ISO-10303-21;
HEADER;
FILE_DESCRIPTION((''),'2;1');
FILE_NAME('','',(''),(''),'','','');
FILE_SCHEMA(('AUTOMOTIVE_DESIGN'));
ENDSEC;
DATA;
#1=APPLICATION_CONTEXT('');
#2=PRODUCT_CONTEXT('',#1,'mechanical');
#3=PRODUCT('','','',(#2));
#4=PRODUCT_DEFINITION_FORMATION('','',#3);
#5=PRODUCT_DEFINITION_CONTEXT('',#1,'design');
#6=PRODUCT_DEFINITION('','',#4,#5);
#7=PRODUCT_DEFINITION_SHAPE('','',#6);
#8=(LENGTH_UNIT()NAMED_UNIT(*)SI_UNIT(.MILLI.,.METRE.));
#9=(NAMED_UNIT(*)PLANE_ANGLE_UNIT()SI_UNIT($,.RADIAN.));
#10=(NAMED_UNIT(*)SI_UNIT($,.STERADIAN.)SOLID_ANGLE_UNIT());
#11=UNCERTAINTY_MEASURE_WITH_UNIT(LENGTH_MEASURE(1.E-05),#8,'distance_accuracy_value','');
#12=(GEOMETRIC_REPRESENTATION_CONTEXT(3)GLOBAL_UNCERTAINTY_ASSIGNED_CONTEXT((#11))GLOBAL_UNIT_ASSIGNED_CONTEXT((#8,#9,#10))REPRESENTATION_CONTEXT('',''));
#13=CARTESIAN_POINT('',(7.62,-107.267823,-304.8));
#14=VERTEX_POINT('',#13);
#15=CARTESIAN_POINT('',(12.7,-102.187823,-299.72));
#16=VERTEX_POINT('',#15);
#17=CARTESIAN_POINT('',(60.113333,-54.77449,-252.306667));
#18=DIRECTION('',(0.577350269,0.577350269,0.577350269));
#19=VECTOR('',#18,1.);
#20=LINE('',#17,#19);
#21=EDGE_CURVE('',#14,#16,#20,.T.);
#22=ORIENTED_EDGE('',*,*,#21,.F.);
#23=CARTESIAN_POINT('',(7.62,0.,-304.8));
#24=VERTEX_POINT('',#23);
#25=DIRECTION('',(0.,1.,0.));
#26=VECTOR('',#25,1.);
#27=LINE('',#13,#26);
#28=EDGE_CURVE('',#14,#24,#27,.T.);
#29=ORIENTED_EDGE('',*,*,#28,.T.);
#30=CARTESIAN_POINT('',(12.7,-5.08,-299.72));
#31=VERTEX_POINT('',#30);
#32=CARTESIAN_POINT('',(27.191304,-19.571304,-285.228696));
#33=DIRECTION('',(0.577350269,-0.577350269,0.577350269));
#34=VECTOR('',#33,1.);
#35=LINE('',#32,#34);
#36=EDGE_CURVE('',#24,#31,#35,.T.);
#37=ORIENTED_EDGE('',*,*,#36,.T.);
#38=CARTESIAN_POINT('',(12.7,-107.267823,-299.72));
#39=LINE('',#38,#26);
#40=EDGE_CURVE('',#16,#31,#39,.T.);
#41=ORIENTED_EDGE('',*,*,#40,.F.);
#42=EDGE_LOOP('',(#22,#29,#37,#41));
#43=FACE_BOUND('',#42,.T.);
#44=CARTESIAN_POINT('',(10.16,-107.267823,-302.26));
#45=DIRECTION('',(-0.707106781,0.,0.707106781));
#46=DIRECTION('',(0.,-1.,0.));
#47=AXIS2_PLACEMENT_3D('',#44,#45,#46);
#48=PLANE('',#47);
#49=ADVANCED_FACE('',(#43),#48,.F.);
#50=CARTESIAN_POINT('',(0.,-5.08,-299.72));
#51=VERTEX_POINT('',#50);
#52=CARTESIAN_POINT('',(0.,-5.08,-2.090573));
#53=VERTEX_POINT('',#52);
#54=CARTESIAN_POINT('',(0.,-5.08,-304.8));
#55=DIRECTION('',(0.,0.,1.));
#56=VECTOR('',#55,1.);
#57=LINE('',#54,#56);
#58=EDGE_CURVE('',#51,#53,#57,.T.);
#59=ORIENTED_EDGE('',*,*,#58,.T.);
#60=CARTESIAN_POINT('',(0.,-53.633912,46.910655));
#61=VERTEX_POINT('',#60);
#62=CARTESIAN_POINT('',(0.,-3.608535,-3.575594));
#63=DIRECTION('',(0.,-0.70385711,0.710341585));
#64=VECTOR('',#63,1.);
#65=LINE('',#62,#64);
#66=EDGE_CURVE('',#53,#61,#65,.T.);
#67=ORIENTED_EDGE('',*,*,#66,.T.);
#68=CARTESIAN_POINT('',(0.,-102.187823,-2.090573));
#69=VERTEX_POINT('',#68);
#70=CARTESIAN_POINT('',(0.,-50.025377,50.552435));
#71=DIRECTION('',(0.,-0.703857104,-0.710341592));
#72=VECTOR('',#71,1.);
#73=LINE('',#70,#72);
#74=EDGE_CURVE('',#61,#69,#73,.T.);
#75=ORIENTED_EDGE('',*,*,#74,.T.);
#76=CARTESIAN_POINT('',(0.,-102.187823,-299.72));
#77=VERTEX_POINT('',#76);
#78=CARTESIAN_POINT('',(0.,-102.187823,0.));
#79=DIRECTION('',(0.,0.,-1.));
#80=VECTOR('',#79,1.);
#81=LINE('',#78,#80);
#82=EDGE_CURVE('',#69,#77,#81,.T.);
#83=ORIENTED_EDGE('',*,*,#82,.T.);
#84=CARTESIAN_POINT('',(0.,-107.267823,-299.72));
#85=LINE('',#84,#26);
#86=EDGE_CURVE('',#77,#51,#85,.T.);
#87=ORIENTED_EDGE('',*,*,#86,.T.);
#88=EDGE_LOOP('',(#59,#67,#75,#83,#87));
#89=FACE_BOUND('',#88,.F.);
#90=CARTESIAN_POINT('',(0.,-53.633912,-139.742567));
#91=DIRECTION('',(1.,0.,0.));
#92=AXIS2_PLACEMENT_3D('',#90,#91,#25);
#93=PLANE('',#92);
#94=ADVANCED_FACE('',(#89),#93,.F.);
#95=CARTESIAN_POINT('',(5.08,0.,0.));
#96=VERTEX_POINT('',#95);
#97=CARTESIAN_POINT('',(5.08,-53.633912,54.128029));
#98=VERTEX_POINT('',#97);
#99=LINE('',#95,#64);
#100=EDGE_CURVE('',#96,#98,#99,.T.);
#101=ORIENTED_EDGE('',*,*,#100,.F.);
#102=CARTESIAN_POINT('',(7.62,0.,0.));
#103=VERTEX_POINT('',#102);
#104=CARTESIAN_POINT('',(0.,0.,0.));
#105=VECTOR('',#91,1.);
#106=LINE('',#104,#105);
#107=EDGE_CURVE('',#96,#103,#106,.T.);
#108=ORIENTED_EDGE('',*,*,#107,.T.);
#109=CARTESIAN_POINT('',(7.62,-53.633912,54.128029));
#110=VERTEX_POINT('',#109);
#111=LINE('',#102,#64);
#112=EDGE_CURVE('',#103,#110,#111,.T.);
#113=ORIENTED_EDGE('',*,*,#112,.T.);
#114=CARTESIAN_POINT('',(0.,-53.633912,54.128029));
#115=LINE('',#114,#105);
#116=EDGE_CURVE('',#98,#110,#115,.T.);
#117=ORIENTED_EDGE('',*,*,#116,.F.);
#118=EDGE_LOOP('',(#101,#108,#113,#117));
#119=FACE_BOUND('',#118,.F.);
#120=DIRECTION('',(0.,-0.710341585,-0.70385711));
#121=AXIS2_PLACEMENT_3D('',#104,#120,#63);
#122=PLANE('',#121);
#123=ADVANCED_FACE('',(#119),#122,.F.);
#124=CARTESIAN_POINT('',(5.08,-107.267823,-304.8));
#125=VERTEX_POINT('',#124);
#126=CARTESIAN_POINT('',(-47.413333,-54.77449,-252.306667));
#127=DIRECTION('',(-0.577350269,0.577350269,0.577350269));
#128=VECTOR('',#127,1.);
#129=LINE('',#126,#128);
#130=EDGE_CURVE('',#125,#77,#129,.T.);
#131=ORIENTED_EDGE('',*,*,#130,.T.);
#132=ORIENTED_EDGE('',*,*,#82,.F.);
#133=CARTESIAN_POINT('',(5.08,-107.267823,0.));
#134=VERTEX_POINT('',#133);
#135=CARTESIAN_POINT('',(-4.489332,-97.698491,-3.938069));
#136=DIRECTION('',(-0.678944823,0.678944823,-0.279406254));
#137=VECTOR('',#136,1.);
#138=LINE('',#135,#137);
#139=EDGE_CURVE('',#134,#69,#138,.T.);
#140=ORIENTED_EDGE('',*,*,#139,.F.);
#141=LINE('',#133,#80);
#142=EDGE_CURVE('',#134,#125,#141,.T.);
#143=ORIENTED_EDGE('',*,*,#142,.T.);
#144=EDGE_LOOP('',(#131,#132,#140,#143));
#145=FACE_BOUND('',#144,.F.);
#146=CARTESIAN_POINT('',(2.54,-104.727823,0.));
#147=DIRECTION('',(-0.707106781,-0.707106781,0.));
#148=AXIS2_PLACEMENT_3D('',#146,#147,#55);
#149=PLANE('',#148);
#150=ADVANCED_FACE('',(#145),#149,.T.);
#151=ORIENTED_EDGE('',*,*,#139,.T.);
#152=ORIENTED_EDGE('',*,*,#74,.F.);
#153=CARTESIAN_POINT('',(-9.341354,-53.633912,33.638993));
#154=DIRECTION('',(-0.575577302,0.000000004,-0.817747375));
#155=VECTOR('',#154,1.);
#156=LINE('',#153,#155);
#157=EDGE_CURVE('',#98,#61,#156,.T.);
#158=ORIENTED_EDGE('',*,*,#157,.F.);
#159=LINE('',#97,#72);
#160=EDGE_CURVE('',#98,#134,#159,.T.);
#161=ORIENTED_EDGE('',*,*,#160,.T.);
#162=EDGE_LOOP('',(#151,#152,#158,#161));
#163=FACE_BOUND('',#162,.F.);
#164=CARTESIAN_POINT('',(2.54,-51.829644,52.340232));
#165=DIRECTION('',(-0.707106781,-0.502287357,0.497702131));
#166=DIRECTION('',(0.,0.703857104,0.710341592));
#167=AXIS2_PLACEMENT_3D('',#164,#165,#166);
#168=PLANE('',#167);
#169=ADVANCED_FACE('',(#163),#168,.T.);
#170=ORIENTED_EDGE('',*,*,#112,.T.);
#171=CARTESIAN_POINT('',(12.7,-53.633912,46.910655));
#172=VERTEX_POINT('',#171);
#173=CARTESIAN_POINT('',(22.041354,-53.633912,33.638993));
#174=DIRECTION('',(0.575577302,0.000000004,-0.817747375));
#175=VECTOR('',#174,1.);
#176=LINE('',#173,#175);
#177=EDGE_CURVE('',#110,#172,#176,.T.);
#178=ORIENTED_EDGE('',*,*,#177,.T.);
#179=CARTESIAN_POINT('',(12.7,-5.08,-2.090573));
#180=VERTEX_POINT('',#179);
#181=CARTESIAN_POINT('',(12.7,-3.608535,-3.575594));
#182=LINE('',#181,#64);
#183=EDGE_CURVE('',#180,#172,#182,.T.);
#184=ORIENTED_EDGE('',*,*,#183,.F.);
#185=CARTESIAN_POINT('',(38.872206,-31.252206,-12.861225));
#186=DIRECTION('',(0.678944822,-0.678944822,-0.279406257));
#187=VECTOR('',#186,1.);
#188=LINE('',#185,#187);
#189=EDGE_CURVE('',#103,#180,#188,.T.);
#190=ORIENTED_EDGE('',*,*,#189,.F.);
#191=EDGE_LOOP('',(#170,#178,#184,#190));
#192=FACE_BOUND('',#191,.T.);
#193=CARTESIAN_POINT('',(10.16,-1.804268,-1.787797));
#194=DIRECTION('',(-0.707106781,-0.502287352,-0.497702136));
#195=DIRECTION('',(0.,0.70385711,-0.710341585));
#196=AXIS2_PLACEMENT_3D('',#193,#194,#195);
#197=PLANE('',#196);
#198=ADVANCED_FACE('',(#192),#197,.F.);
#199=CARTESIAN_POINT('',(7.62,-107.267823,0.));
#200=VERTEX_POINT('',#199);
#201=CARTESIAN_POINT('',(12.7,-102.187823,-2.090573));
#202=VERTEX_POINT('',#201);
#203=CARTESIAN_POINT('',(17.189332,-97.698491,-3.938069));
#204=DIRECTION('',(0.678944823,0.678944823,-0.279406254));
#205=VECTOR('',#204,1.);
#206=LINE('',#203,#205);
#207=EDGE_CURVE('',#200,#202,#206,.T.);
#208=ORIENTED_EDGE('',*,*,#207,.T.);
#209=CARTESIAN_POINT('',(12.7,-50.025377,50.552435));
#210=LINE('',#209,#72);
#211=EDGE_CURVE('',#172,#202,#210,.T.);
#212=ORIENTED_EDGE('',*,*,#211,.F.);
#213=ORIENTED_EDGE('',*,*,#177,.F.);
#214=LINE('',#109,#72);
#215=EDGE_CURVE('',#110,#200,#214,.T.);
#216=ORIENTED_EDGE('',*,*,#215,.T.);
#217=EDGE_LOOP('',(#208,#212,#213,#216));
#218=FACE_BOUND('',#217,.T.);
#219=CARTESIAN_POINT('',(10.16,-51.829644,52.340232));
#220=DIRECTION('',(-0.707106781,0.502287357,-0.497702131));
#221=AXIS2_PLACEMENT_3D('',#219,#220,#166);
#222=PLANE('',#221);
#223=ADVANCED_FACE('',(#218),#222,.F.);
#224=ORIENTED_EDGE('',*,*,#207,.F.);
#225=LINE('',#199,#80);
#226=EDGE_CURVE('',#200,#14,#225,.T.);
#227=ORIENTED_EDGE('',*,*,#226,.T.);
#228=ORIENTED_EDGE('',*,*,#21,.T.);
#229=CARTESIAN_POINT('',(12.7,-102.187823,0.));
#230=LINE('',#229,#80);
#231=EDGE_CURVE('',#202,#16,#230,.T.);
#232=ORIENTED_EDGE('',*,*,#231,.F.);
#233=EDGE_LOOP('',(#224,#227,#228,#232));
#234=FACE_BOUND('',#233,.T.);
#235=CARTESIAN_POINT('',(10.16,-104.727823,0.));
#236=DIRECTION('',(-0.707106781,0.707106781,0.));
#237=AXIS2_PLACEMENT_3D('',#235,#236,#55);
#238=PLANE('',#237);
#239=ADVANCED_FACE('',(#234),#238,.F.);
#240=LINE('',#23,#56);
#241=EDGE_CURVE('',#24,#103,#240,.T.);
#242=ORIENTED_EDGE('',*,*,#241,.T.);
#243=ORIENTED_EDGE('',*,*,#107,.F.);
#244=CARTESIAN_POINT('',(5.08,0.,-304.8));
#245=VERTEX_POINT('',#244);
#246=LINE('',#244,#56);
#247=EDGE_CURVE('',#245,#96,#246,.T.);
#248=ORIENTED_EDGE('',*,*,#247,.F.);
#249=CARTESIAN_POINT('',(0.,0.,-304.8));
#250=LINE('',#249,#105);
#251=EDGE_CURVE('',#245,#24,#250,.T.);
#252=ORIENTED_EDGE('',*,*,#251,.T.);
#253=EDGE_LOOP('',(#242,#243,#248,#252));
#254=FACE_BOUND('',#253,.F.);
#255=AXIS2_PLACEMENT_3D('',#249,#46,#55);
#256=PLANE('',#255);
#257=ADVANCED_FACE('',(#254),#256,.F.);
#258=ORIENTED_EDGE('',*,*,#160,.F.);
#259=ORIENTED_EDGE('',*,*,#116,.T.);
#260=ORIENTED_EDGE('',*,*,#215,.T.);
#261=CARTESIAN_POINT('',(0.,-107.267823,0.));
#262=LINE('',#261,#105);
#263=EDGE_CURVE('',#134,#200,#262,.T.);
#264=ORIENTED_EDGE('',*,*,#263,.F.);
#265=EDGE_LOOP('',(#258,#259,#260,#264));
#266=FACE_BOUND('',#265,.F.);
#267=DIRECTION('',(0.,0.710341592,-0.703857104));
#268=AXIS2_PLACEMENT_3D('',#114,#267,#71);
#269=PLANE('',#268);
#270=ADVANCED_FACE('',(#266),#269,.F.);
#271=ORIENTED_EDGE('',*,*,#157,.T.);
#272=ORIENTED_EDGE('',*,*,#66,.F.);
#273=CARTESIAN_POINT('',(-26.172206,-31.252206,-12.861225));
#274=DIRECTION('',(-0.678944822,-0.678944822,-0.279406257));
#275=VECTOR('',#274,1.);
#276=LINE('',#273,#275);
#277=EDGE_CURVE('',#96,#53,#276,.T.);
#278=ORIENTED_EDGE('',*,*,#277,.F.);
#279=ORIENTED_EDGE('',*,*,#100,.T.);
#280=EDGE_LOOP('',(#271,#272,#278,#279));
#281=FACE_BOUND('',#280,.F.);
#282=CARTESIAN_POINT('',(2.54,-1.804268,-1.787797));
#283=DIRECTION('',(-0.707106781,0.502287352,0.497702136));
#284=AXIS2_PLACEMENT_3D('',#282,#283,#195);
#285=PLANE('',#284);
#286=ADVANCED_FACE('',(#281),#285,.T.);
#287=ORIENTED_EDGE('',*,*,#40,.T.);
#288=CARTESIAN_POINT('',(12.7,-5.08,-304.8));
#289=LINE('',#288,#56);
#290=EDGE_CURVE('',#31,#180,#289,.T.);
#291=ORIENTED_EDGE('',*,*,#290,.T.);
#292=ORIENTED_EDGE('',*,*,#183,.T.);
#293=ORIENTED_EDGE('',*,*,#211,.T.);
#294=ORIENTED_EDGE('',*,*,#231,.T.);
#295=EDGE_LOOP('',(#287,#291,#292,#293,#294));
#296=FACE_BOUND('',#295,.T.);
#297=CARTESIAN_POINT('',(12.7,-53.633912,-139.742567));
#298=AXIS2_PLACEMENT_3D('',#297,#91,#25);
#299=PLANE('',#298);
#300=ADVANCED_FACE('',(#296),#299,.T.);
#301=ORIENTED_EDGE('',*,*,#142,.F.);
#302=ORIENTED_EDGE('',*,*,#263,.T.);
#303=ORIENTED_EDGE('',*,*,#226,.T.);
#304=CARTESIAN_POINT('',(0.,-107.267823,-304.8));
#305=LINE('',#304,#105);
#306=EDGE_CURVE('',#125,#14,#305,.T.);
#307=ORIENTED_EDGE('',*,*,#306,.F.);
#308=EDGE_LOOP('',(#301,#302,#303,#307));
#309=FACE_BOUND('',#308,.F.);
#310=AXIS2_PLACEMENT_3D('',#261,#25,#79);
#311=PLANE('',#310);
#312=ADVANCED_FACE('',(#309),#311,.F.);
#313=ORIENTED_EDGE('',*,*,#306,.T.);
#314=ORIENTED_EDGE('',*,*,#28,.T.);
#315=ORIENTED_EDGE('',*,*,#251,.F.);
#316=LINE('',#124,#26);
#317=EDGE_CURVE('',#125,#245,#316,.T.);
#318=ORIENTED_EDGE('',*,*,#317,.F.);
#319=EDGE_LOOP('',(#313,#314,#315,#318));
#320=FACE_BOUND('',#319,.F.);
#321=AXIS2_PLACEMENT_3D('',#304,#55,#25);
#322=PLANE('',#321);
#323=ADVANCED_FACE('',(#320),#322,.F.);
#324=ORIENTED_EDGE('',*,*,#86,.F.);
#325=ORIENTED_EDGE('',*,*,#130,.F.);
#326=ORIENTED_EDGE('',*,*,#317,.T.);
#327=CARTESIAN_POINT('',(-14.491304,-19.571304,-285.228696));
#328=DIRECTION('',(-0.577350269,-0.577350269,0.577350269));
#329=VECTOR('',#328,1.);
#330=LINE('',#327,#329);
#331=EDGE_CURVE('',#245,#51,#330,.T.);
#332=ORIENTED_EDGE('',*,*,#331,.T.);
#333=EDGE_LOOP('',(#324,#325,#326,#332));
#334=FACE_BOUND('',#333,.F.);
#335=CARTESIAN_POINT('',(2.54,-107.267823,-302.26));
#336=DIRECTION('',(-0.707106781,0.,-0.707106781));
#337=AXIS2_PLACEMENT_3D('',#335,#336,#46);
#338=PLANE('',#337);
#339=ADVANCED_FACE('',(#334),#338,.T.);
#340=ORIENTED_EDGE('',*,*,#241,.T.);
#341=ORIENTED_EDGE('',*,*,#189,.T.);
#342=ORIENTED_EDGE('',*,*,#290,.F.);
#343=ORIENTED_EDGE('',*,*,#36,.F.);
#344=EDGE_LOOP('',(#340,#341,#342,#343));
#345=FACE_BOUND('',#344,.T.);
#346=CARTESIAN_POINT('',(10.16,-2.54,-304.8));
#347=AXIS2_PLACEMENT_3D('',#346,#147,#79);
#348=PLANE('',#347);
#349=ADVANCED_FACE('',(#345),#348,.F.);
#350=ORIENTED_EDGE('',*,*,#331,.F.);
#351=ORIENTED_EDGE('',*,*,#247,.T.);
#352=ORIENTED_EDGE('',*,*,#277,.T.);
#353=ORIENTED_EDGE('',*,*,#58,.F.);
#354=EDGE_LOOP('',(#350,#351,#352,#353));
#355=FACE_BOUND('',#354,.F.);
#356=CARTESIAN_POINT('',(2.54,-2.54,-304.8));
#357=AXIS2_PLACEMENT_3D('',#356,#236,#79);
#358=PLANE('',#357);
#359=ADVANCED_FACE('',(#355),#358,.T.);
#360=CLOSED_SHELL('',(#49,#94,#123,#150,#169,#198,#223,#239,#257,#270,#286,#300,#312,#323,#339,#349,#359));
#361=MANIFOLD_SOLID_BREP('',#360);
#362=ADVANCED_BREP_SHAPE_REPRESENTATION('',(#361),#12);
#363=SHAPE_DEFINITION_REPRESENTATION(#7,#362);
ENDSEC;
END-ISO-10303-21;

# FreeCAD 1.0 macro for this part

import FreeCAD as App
import Part
import Sketcher
from FreeCAD import Vector
Q = App.Units.Quantity


def edges_at(feature, points):
    """Names of the edges that pass closest to the given points."""
    edges = feature.Shape.Edges
    near = lambda p: min(range(len(edges)), key=lambda i: edges[i].distToShape(Part.Vertex(*p))[0])
    return sorted({f"Edge{near(p) + 1}" for p in points})

doc = App.newDocument("Part")
body = doc.addObject("PartDesign::Body", "Body")

# Sketch on YZ plane
sketch1 = body.newObject("Sketcher::SketchObject", "Sketch")
sketch1.AttachmentSupport = (doc.getObject("YZ_Plane"), [""])
sketch1.MapMode = "FlatFace"
sketch1.addGeometry([
    Part.LineSegment(Vector(-107, 0, 0), Vector(-107, -305, 0)),  # 0
    Part.LineSegment(Vector(-107, -305, 0), Vector(0, -305, 0)),  # 1
    Part.LineSegment(Vector(0, -305, 0), Vector(0, 0, 0)),  # 2
    Part.LineSegment(Vector(0, 0, 0), Vector(-54, 54, 0)),  # 3
    Part.LineSegment(Vector(-54, 54, 0), Vector(-107, 0, 0)),  # 4
], False)
sketch1.addConstraint([
    Sketcher.Constraint("Coincident", 0, 2, 1, 1),
    Sketcher.Constraint("Coincident", 1, 2, 2, 1),
    Sketcher.Constraint("Coincident", 2, 2, 3, 1),
    Sketcher.Constraint("Coincident", 3, 2, 4, 1),
    Sketcher.Constraint("Coincident", 4, 2, 0, 1),
    Sketcher.Constraint("Vertical", 0),
    Sketcher.Constraint("Horizontal", 1),
    Sketcher.Constraint("Vertical", 2),
    Sketcher.Constraint("Coincident", 2, 2, -1, 1),
    Sketcher.Constraint("PointOnObject", 4, 2, -1),
    Sketcher.Constraint("Equal", 3, 4),
    Sketcher.Constraint("DistanceY", 0, 2, 0, 1, Q("12 in")),
    Sketcher.Constraint("Distance", 3, Q("3 in")),
    Sketcher.Constraint("DistanceX", 1, 1, 1, 2, 107.267823),
])
pad1 = body.newObject("PartDesign::Pad", "Pad")
pad1.Profile = sketch1
pad1.Length = Q("0.5 in")
doc.recompute()

chamfer = body.newObject("PartDesign::Chamfer", "Chamfer")
chamfer.Base = (pad1, edges_at(pad1, [
    (12.7, -80.451, 27.064),
    (12.7, -107.268, -152.4),
    (12.7, -53.634, -304.8),
    (12.7, 0, -152.4),
    (12.7, -26.817, 27.064),
    (0, -80.451, 27.064),
    (0, -107.268, -152.4),
    (0, -53.634, -304.8),
    (0, 0, -152.4),
    (0, -26.817, 27.064),
]))
chamfer.Size = Q("0.2 in")

doc.recompute()
